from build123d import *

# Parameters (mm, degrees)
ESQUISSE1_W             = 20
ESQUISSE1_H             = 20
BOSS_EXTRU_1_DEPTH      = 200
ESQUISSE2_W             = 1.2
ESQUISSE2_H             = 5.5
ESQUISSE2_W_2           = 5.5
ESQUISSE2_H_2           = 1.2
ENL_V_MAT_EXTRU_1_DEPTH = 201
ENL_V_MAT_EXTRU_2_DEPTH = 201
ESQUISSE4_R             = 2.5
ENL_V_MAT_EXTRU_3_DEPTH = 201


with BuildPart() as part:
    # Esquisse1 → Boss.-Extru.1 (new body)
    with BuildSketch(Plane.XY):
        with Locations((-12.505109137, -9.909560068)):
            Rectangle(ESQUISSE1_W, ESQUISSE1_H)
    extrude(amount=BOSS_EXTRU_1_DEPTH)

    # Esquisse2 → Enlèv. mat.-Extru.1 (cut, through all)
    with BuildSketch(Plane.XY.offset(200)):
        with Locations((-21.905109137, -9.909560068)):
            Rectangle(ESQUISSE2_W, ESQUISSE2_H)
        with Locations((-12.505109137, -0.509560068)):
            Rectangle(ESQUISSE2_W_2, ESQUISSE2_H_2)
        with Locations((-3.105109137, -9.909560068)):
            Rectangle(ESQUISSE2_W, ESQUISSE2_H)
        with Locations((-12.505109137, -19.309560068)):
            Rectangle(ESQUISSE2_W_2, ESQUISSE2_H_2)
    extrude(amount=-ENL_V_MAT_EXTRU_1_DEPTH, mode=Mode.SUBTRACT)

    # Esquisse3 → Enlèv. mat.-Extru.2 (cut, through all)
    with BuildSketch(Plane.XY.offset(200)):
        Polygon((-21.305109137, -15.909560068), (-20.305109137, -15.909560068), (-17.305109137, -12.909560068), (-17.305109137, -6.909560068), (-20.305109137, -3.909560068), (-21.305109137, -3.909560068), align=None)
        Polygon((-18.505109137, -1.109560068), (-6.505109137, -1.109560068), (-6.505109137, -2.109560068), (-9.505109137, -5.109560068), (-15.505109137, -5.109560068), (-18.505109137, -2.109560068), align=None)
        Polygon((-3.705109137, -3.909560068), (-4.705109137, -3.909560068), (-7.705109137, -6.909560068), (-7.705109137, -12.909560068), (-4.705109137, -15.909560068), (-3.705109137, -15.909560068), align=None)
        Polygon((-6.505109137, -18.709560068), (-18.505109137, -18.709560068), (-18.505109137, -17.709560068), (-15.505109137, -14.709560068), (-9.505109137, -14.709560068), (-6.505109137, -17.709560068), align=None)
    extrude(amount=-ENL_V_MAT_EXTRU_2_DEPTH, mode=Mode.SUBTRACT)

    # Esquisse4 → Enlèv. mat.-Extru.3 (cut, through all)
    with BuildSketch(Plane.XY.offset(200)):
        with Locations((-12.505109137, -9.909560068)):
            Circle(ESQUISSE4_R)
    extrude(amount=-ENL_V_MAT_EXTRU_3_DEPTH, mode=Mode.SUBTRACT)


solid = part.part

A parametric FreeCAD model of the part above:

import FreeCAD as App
import Part
import Sketcher

V = App.Vector
Q = App.Units.Quantity

doc = App.newDocument("Part")
body = doc.addObject("PartDesign::Body", "Body")

sketch1 = body.newObject("Sketcher::SketchObject", "Sketch")
sketch1.AttachmentSupport = (doc.getObject("XY_Plane"), [""])
sketch1.MapMode = "FlatFace"
sketch1.addGeometry(Part.LineSegment(V(-23, 0, 0), V(-23, -20, 0)), False)
sketch1.addGeometry(Part.LineSegment(V(-23, -20, 0), V(-3, -20, 0)), False)
sketch1.addGeometry(Part.LineSegment(V(-3, -20, 0), V(-3, 0, 0)), False)
sketch1.addGeometry(Part.LineSegment(V(-3, 0, 0), V(-23, 0, 0)), False)
sketch1.addConstraint(Sketcher.Constraint("Coincident", 0, 2, 1, 1))
sketch1.addConstraint(Sketcher.Constraint("Coincident", 1, 2, 2, 1))
sketch1.addConstraint(Sketcher.Constraint("Coincident", 2, 2, 3, 1))
sketch1.addConstraint(Sketcher.Constraint("Coincident", 3, 2, 0, 1))
sketch1.addConstraint(Sketcher.Constraint("Vertical", 0))
sketch1.addConstraint(Sketcher.Constraint("Horizontal", 1))
sketch1.addConstraint(Sketcher.Constraint("Vertical", 2))
sketch1.addConstraint(Sketcher.Constraint("Horizontal", 3))
sketch1.addConstraint(Sketcher.Constraint("Equal", 3, 0))
sketch1.addConstraint(Sketcher.Constraint("DistanceX", 1, 1, 1, 2, Q("20 mm")))
sketch1.addConstraint(Sketcher.Constraint("DistanceX", 0, 2, -1, 1, Q("22.505109 mm")))
sketch1.addConstraint(Sketcher.Constraint("DistanceY", 0, 2, -1, 1, Q("19.90956 mm")))
pad1 = body.newObject("PartDesign::Pad", "Pad")
pad1.Profile = sketch1
pad1.Length = 200

sketch2 = body.newObject("Sketcher::SketchObject", "Sketch001")
sketch2.AttachmentSupport = (doc.getObject("XY_Plane"), [""])
sketch2.MapMode = "FlatFace"
sketch2.AttachmentOffset = App.Placement(V(0, 0, 200), App.Rotation())
sketch2.addGeometry(Part.LineSegment(V(-22.5, -7.2, 0), V(-22.5, -12.7, 0)), False)
sketch2.addGeometry(Part.LineSegment(V(-22.5, -12.7, 0), V(-21.3, -12.7, 0)), False)
sketch2.addGeometry(Part.LineSegment(V(-21.3, -12.7, 0), V(-21.3, -7.2, 0)), False)
sketch2.addGeometry(Part.LineSegment(V(-21.3, -7.2, 0), V(-22.5, -7.2, 0)), False)
sketch2.addGeometry(Part.LineSegment(V(-15.3, 0.1, 0), V(-15.3, -1.1, 0)), False)
sketch2.addGeometry(Part.LineSegment(V(-15.3, -1.1, 0), V(-9.8, -1.1, 0)), False)
sketch2.addGeometry(Part.LineSegment(V(-9.8, -1.1, 0), V(-9.8, 0.1, 0)), False)
sketch2.addGeometry(Part.LineSegment(V(-9.8, 0.1, 0), V(-15.3, 0.1, 0)), False)
sketch2.addGeometry(Part.LineSegment(V(-3.7, -7.2, 0), V(-3.7, -12.7, 0)), False)
sketch2.addGeometry(Part.LineSegment(V(-3.7, -12.7, 0), V(-2.5, -12.7, 0)), False)
sketch2.addGeometry(Part.LineSegment(V(-2.5, -12.7, 0), V(-2.5, -7.2, 0)), False)
sketch2.addGeometry(Part.LineSegment(V(-2.5, -7.2, 0), V(-3.7, -7.2, 0)), False)
sketch2.addGeometry(Part.LineSegment(V(-15.3, -18.7, 0), V(-15.3, -19.9, 0)), False)
sketch2.addGeometry(Part.LineSegment(V(-15.3, -19.9, 0), V(-9.8, -19.9, 0)), False)
sketch2.addGeometry(Part.LineSegment(V(-9.8, -19.9, 0), V(-9.8, -18.7, 0)), False)
sketch2.addGeometry(Part.LineSegment(V(-9.8, -18.7, 0), V(-15.3, -18.7, 0)), False)
sketch2.addConstraint(Sketcher.Constraint("Coincident", 0, 2, 1, 1))
sketch2.addConstraint(Sketcher.Constraint("Coincident", 1, 2, 2, 1))
sketch2.addConstraint(Sketcher.Constraint("Coincident", 2, 2, 3, 1))
sketch2.addConstraint(Sketcher.Constraint("Coincident", 3, 2, 0, 1))
sketch2.addConstraint(Sketcher.Constraint("Coincident", 4, 2, 5, 1))
sketch2.addConstraint(Sketcher.Constraint("Coincident", 5, 2, 6, 1))
sketch2.addConstraint(Sketcher.Constraint("Coincident", 6, 2, 7, 1))
sketch2.addConstraint(Sketcher.Constraint("Coincident", 7, 2, 4, 1))
sketch2.addConstraint(Sketcher.Constraint("Coincident", 8, 2, 9, 1))
sketch2.addConstraint(Sketcher.Constraint("Coincident", 9, 2, 10, 1))
sketch2.addConstraint(Sketcher.Constraint("Coincident", 10, 2, 11, 1))
sketch2.addConstraint(Sketcher.Constraint("Coincident", 11, 2, 8, 1))
sketch2.addConstraint(Sketcher.Constraint("Coincident", 12, 2, 13, 1))
sketch2.addConstraint(Sketcher.Constraint("Coincident", 13, 2, 14, 1))
sketch2.addConstraint(Sketcher.Constraint("Coincident", 14, 2, 15, 1))
sketch2.addConstraint(Sketcher.Constraint("Coincident", 15, 2, 12, 1))
sketch2.addConstraint(Sketcher.Constraint("Vertical", 0))
sketch2.addConstraint(Sketcher.Constraint("Horizontal", 1))
sketch2.addConstraint(Sketcher.Constraint("Vertical", 2))
sketch2.addConstraint(Sketcher.Constraint("Horizontal", 3))
sketch2.addConstraint(Sketcher.Constraint("Vertical", 4))
sketch2.addConstraint(Sketcher.Constraint("Horizontal", 5))
sketch2.addConstraint(Sketcher.Constraint("Vertical", 6))
sketch2.addConstraint(Sketcher.Constraint("Horizontal", 7))
sketch2.addConstraint(Sketcher.Constraint("Vertical", 8))
sketch2.addConstraint(Sketcher.Constraint("Horizontal", 9))
sketch2.addConstraint(Sketcher.Constraint("Vertical", 10))
sketch2.addConstraint(Sketcher.Constraint("Horizontal", 11))
sketch2.addConstraint(Sketcher.Constraint("Vertical", 12))
sketch2.addConstraint(Sketcher.Constraint("Horizontal", 13))
sketch2.addConstraint(Sketcher.Constraint("Vertical", 14))
sketch2.addConstraint(Sketcher.Constraint("Horizontal", 15))
sketch2.addConstraint(Sketcher.Constraint("Horizontal", 1, 2, 8, 2))
sketch2.addConstraint(Sketcher.Constraint("Horizontal", 3, 2, 10, 2))
sketch2.addConstraint(Sketcher.Constraint("Vertical", 7, 2, 12, 2))
sketch2.addConstraint(Sketcher.Constraint("Vertical", 6, 2, 13, 2))
sketch2.addConstraint(Sketcher.Constraint("Equal", 3, 9))
sketch2.addConstraint(Sketcher.Constraint("Equal", 15, 0))
sketch2.addConstraint(Sketcher.Constraint("Equal", 11, 4))
sketch2.addConstraint(Sketcher.Constraint("Equal", 6, 12))
sketch2.addConstraint(Sketcher.Constraint("DistanceX", 1, 1, 1, 2, Q("1.2 mm")))
sketch2.addConstraint(Sketcher.Constraint("DistanceX", 5, 1, 5, 2, Q("5.5 mm")))
sketch2.addConstraint(Sketcher.Constraint("DistanceX", 1, 2, 8, 2, Q("17.6 mm")))
sketch2.addConstraint(Sketcher.Constraint("DistanceX", 2, 2, 4, 2, Q("6.05 mm")))
sketch2.addConstraint(Sketcher.Constraint("DistanceY", 2, 2, 4, 2, Q("6.05 mm")))
sketch2.addConstraint(Sketcher.Constraint("DistanceY", 12, 2, 1, 2, Q("7.25 mm")))
sketch2.addConstraint(Sketcher.Constraint("DistanceX", 0, 2, -1, 1, Q("22.505109 mm")))
sketch2.addConstraint(Sketcher.Constraint("DistanceY", 0, 2, -1, 1, Q("12.65956 mm")))
pocket1 = body.newObject("PartDesign::Pocket", "Pocket")
pocket1.Profile = sketch2
pocket1.Type = "ThroughAll"

sketch3 = body.newObject("Sketcher::SketchObject", "Sketch002")
sketch3.AttachmentSupport = (doc.getObject("XY_Plane"), [""])
sketch3.MapMode = "FlatFace"
sketch3.AttachmentOffset = App.Placement(V(0, 0, 200), App.Rotation())
sketch3.addGeometry(Part.LineSegment(V(-21.3, -15.9, 0), V(-20.3, -15.9, 0)), False)
sketch3.addGeometry(Part.LineSegment(V(-20.3, -15.9, 0), V(-17.3, -12.9, 0)), False)
sketch3.addGeometry(Part.LineSegment(V(-17.3, -12.9, 0), V(-17.3, -6.9, 0)), False)
sketch3.addGeometry(Part.LineSegment(V(-17.3, -6.9, 0), V(-20.3, -3.9, 0)), False)
sketch3.addGeometry(Part.LineSegment(V(-20.3, -3.9, 0), V(-21.3, -3.9, 0)), False)
sketch3.addGeometry(Part.LineSegment(V(-21.3, -3.9, 0), V(-21.3, -15.9, 0)), False)
sketch3.addGeometry(Part.LineSegment(V(-6.5, -1.1, 0), V(-18.5, -1.1, 0)), False)
sketch3.addGeometry(Part.LineSegment(V(-18.5, -1.1, 0), V(-18.5, -2.1, 0)), False)
sketch3.addGeometry(Part.LineSegment(V(-18.5, -2.1, 0), V(-15.5, -5.1, 0)), False)
sketch3.addGeometry(Part.LineSegment(V(-15.5, -5.1, 0), V(-9.5, -5.1, 0)), False)
sketch3.addGeometry(Part.LineSegment(V(-9.5, -5.1, 0), V(-6.5, -2.1, 0)), False)
sketch3.addGeometry(Part.LineSegment(V(-6.5, -2.1, 0), V(-6.5, -1.1, 0)), False)
sketch3.addGeometry(Part.LineSegment(V(-3.7, -3.9, 0), V(-4.7, -3.9, 0)), False)
sketch3.addGeometry(Part.LineSegment(V(-4.7, -3.9, 0), V(-7.7, -6.9, 0)), False)
sketch3.addGeometry(Part.LineSegment(V(-7.7, -6.9, 0), V(-7.7, -12.9, 0)), False)
sketch3.addGeometry(Part.LineSegment(V(-7.7, -12.9, 0), V(-4.7, -15.9, 0)), False)
sketch3.addGeometry(Part.LineSegment(V(-4.7, -15.9, 0), V(-3.7, -15.9, 0)), False)
sketch3.addGeometry(Part.LineSegment(V(-3.7, -15.9, 0), V(-3.7, -3.9, 0)), False)
sketch3.addGeometry(Part.LineSegment(V(-18.5, -18.7, 0), V(-6.5, -18.7, 0)), False)
sketch3.addGeometry(Part.LineSegment(V(-6.5, -18.7, 0), V(-6.5, -17.7, 0)), False)
sketch3.addGeometry(Part.LineSegment(V(-6.5, -17.7, 0), V(-9.5, -14.7, 0)), False)
sketch3.addGeometry(Part.LineSegment(V(-9.5, -14.7, 0), V(-15.5, -14.7, 0)), False)
sketch3.addGeometry(Part.LineSegment(V(-15.5, -14.7, 0), V(-18.5, -17.7, 0)), False)
sketch3.addGeometry(Part.LineSegment(V(-18.5, -17.7, 0), V(-18.5, -18.7, 0)), False)
sketch3.addConstraint(Sketcher.Constraint("Coincident", 0, 2, 1, 1))
sketch3.addConstraint(Sketcher.Constraint("Coincident", 1, 2, 2, 1))
sketch3.addConstraint(Sketcher.Constraint("Coincident", 2, 2, 3, 1))
sketch3.addConstraint(Sketcher.Constraint("Coincident", 3, 2, 4, 1))
sketch3.addConstraint(Sketcher.Constraint("Coincident", 4, 2, 5, 1))
sketch3.addConstraint(Sketcher.Constraint("Coincident", 5, 2, 0, 1))
sketch3.addConstraint(Sketcher.Constraint("Coincident", 6, 2, 7, 1))
sketch3.addConstraint(Sketcher.Constraint("Coincident", 7, 2, 8, 1))
sketch3.addConstraint(Sketcher.Constraint("Coincident", 8, 2, 9, 1))
sketch3.addConstraint(Sketcher.Constraint("Coincident", 9, 2, 10, 1))
sketch3.addConstraint(Sketcher.Constraint("Coincident", 10, 2, 11, 1))
sketch3.addConstraint(Sketcher.Constraint("Coincident", 11, 2, 6, 1))
sketch3.addConstraint(Sketcher.Constraint("Coincident", 12, 2, 13, 1))
sketch3.addConstraint(Sketcher.Constraint("Coincident", 13, 2, 14, 1))
sketch3.addConstraint(Sketcher.Constraint("Coincident", 14, 2, 15, 1))
sketch3.addConstraint(Sketcher.Constraint("Coincident", 15, 2, 16, 1))
sketch3.addConstraint(Sketcher.Constraint("Coincident", 16, 2, 17, 1))
sketch3.addConstraint(Sketcher.Constraint("Coincident", 17, 2, 12, 1))
sketch3.addConstraint(Sketcher.Constraint("Coincident", 18, 2, 19, 1))
sketch3.addConstraint(Sketcher.Constraint("Coincident", 19, 2, 20, 1))
sketch3.addConstraint(Sketcher.Constraint("Coincident", 20, 2, 21, 1))
sketch3.addConstraint(Sketcher.Constraint("Coincident", 21, 2, 22, 1))
sketch3.addConstraint(Sketcher.Constraint("Coincident", 22, 2, 23, 1))
sketch3.addConstraint(Sketcher.Constraint("Coincident", 23, 2, 18, 1))
sketch3.addConstraint(Sketcher.Constraint("Horizontal", 0))
sketch3.addConstraint(Sketcher.Constraint("Vertical", 2))
sketch3.addConstraint(Sketcher.Constraint("Horizontal", 4))
sketch3.addConstraint(Sketcher.Constraint("Vertical", 5))
sketch3.addConstraint(Sketcher.Constraint("Horizontal", 6))
sketch3.addConstraint(Sketcher.Constraint("Vertical", 7))
sketch3.addConstraint(Sketcher.Constraint("Horizontal", 9))
sketch3.addConstraint(Sketcher.Constraint("Vertical", 11))
sketch3.addConstraint(Sketcher.Constraint("Horizontal", 12))
sketch3.addConstraint(Sketcher.Constraint("Vertical", 14))
sketch3.addConstraint(Sketcher.Constraint("Horizontal", 16))
sketch3.addConstraint(Sketcher.Constraint("Vertical", 17))
sketch3.addConstraint(Sketcher.Constraint("Horizontal", 18))
sketch3.addConstraint(Sketcher.Constraint("Vertical", 19))
sketch3.addConstraint(Sketcher.Constraint("Horizontal", 21))
sketch3.addConstraint(Sketcher.Constraint("Vertical", 23))
sketch3.addConstraint(Sketcher.Constraint("Perpendicular", 1, 3))
sketch3.addConstraint(Sketcher.Constraint("Parallel", 3, 8))
sketch3.addConstraint(Sketcher.Constraint("Perpendicular", 8, 10))
sketch3.addConstraint(Sketcher.Constraint("Parallel", 10, 13))
sketch3.addConstraint(Sketcher.Constraint("Perpendicular", 13, 15))
sketch3.addConstraint(Sketcher.Constraint("Parallel", 15, 20))
sketch3.addConstraint(Sketcher.Constraint("Perpendicular", 20, 22))
sketch3.addConstraint(Sketcher.Constraint("Horizontal", 7, 2, 10, 2))
sketch3.addConstraint(Sketcher.Constraint("Horizontal", 4, 2, 12, 2))
sketch3.addConstraint(Sketcher.Constraint("Horizontal", 2, 2, 13, 2))
sketch3.addConstraint(Sketcher.Constraint("Horizontal", 1, 2, 14, 2))
sketch3.addConstraint(Sketcher.Constraint("Horizontal", 5, 2, 15, 2))
sketch3.addConstraint(Sketcher.Constraint("Horizontal", 19, 2, 22, 2))
sketch3.addConstraint(Sketcher.Constraint("Vertical", 0, 2, 3, 2))
sketch3.addConstraint(Sketcher.Constraint("Vertical", 12, 2, 15, 2))
sketch3.addConstraint(Sketcher.Constraint("Vertical", 11, 2, 18, 2))
sketch3.addConstraint(Sketcher.Constraint("Vertical", 9, 2, 20, 2))
sketch3.addConstraint(Sketcher.Constraint("Vertical", 8, 2, 21, 2))
sketch3.addConstraint(Sketcher.Constraint("Equal", 4, 12))
sketch3.addConstraint(Sketcher.Constraint("Equal", 21, 2))
sketch3.addConstraint(Sketcher.Constraint("Equal", 18, 5))
sketch3.addConstraint(Sketcher.Constraint("Equal", 16, 7))
sketch3.addConstraint(Sketcher.Constraint("Equal", 11, 19))
sketch3.addConstraint(Sketcher.Constraint("DistanceX", 0, 1, 0, 2, Q("1 mm")))
sketch3.addConstraint(Sketcher.Constraint("DistanceX", 6, 2, 6, 1, Q("12 mm")))
sketch3.addConstraint(Sketcher.Constraint("DistanceX", 9, 1, 9, 2, Q("6 mm")))
sketch3.addConstraint(Sketcher.Constraint("DistanceX", 3, 2, 6, 2, Q("1.8 mm")))
sketch3.addConstraint(Sketcher.Constraint("DistanceY", 3, 2, 6, 2, Q("2.8 mm")))
sketch3.addConstraint(Sketcher.Constraint("DistanceX", 10, 2, 12, 2, Q("1.8 mm")))
sketch3.addConstraint(Sketcher.Constraint("DistanceY", 18, 2, 15, 2, Q("2.8 mm")))
sketch3.addConstraint(Sketcher.Constraint("DistanceX", 0, 2, -1, 1, Q("20.305109 mm")))
sketch3.addConstraint(Sketcher.Constraint("DistanceY", 0, 2, -1, 1, Q("15.90956 mm")))
pocket2 = body.newObject("PartDesign::Pocket", "Pocket001")
pocket2.Profile = sketch3
pocket2.Type = "ThroughAll"

sketch4 = body.newObject("Sketcher::SketchObject", "Sketch003")
sketch4.AttachmentSupport = (doc.getObject("XY_Plane"), [""])
sketch4.MapMode = "FlatFace"
sketch4.AttachmentOffset = App.Placement(V(0, 0, 200), App.Rotation())
sketch4.addGeometry(Part.Circle(V(-12.5, -9.9, 0), V(0, 0, 1), 2.5), False)
sketch4.addConstraint(Sketcher.Constraint("Diameter", 0, Q("5 mm")))
sketch4.addConstraint(Sketcher.Constraint("DistanceX", 0, 3, -1, 1, Q("12.505109 mm")))
sketch4.addConstraint(Sketcher.Constraint("DistanceY", 0, 3, -1, 1, Q("9.90956 mm")))
pocket3 = body.newObject("PartDesign::Pocket", "Pocket002")
pocket3.Profile = sketch4
pocket3.Type = "ThroughAll"

doc.recompute()
